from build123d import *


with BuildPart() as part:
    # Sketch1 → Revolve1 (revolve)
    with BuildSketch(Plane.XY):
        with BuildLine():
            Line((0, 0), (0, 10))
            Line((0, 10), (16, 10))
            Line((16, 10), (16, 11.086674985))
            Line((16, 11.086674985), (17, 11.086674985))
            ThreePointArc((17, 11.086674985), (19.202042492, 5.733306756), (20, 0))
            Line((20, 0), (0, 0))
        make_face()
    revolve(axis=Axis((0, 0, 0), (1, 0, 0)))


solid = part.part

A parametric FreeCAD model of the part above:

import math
import FreeCAD as App
import Part
import Sketcher

V = App.Vector

doc = App.newDocument("Part")
params = doc.addObject("Spreadsheet::Sheet", "Params")
for row, (alias, value) in enumerate([
    ("sketch1_width", "20 mm"),
    ("sketch1_width2", "1 mm"),
    ("sketch1_width3", "16 mm"),
    ("sketch1_height", "10 mm"),
    ("revolution_angle", "360 deg"),
], start=1):
    params.set(f"A{row}", alias)
    params.set(f"B{row}", "=" + value)
    params.setAlias(f"B{row}", alias)

body = doc.addObject("PartDesign::Body", "Body")

sketch1 = body.newObject("Sketcher::SketchObject", "Sketch")
sketch1.AttachmentSupport = (doc.getObject("XY_Plane"), [""])
sketch1.MapMode = "FlatFace"
sketch1.addGeometry(Part.LineSegment(V(0, 10, 0), V(0, 0, 0)), False)
sketch1.addGeometry(Part.LineSegment(V(0, 0, 0), V(20, 0, 0)), False)
sketch1.addGeometry(Part.ArcOfCircle(Part.Circle(V(-3, -0.3, 0), V(0, 0, 1), 23), math.radians(1), math.radians(30)), False)
sketch1.addGeometry(Part.LineSegment(V(17, 11.1, 0), V(16, 11.1, 0)), False)
sketch1.addGeometry(Part.LineSegment(V(16, 11.1, 0), V(16, 10, 0)), False)
sketch1.addGeometry(Part.LineSegment(V(16, 10, 0), V(0, 10, 0)), False)
sketch1.addConstraint(Sketcher.Constraint("Coincident", 0, 2, 1, 1))
sketch1.addConstraint(Sketcher.Constraint("Coincident", 1, 2, 2, 1))
sketch1.addConstraint(Sketcher.Constraint("Coincident", 2, 2, 3, 1))
sketch1.addConstraint(Sketcher.Constraint("Coincident", 3, 2, 4, 1))
sketch1.addConstraint(Sketcher.Constraint("Coincident", 4, 2, 5, 1))
sketch1.addConstraint(Sketcher.Constraint("Coincident", 5, 2, 0, 1))
sketch1.addConstraint(Sketcher.Constraint("Vertical", 0))
sketch1.addConstraint(Sketcher.Constraint("Horizontal", 1))
sketch1.addConstraint(Sketcher.Constraint("Horizontal", 3))
sketch1.addConstraint(Sketcher.Constraint("Vertical", 4))
sketch1.addConstraint(Sketcher.Constraint("Horizontal", 5))
sketch1.addConstraint(Sketcher.Constraint("Coincident", 0, 2, -1, 1))
sketch1.addConstraint(Sketcher.Constraint("DistanceX", 1, 1, 1, 2, 20.0))
sketch1.addConstraint(Sketcher.Constraint("DistanceX", 3, 2, 3, 1, 1.0))
sketch1.addConstraint(Sketcher.Constraint("DistanceX", 5, 2, 5, 1, 16.0))
sketch1.addConstraint(Sketcher.Constraint("DistanceY", 0, 2, 0, 1, 10.0))
sketch1.addConstraint(Sketcher.Constraint("Radius", 2, 23.035861))
sketch1.addConstraint(Sketcher.Constraint("DistanceY", 4, 2, 4, 1, 1.086675))
sketch1.setExpression("Constraints[12]", "Params.sketch1_width")
sketch1.setExpression("Constraints[13]", "Params.sketch1_width2")
sketch1.setExpression("Constraints[14]", "Params.sketch1_width3")
sketch1.setExpression("Constraints[15]", "Params.sketch1_height")
revolution = body.newObject("PartDesign::Revolution", "Revolution")
revolution.Profile = sketch1
revolution.ReferenceAxis = (sketch1, ["H_Axis"])
revolution.setExpression("Angle", "Params.revolution_angle")

doc.recompute()
